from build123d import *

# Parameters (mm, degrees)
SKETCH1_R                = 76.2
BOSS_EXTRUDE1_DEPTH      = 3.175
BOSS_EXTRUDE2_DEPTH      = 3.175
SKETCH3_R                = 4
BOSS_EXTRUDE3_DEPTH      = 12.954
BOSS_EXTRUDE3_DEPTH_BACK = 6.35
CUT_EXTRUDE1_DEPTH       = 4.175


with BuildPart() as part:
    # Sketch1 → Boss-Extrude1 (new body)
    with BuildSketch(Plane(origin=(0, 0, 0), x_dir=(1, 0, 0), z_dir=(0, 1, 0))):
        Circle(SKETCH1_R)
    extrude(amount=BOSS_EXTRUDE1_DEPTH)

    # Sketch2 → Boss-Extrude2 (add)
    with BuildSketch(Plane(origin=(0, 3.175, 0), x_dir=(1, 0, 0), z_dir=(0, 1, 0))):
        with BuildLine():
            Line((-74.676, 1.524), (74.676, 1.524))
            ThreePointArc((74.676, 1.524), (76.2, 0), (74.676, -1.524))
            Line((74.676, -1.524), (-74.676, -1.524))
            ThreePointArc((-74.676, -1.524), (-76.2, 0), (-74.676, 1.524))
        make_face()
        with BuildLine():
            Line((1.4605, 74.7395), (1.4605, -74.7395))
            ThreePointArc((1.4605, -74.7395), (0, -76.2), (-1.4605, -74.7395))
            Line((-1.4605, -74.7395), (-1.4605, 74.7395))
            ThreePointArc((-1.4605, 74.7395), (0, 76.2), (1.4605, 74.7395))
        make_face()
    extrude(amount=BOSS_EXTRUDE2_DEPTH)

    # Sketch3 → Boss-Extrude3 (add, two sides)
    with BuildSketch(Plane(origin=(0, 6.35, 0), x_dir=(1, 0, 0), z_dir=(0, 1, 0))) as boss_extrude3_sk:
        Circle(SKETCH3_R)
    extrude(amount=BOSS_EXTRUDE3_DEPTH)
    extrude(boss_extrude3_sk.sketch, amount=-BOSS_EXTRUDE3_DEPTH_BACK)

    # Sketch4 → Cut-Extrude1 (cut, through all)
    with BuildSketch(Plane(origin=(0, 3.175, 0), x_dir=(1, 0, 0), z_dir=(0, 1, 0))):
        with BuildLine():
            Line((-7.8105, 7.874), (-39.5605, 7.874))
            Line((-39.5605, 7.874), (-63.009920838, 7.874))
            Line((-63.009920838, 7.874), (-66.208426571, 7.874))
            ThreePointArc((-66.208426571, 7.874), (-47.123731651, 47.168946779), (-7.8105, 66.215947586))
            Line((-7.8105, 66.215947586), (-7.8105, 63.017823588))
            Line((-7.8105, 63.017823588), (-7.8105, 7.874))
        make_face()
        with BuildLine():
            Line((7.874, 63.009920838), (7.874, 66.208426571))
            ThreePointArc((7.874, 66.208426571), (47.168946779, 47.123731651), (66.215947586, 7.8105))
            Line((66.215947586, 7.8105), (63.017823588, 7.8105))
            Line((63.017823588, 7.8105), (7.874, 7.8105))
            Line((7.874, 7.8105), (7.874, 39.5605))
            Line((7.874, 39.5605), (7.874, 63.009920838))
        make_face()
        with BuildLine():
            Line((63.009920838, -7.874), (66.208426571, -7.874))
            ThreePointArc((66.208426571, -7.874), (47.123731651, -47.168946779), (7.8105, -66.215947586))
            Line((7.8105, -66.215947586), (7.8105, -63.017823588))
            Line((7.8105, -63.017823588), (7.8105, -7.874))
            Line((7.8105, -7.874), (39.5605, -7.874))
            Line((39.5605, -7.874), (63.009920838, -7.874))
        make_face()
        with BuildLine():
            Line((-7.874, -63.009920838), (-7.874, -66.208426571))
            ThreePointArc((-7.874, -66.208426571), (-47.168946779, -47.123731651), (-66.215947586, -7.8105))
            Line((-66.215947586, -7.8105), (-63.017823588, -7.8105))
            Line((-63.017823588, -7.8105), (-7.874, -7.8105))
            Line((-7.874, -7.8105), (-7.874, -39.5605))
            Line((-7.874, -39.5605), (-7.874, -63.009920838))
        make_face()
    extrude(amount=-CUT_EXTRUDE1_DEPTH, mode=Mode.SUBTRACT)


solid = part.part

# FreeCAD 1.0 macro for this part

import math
import FreeCAD as App
import Part
import Sketcher
Q = App.Units.Quantity

doc = App.newDocument("Part")
body = doc.addObject("PartDesign::Body", "Body")

# Sketch on XZ plane
sketch1 = body.newObject("Sketcher::SketchObject", "Sketch")
sketch1.AttachmentSupport = (doc.getObject("XZ_Plane"), [""])
sketch1.MapMode = "FlatFace"
sketch1.addGeometry(Part.Circle(App.Vector(0, 0, 0), App.Vector(0, 0, 1), 76), False)
sketch1.addConstraint([
    Sketcher.Constraint("Coincident", 0, 3, -1, 1),
    Sketcher.Constraint("Diameter", 0, Q("6 in")),
])
pad1 = body.newObject("PartDesign::Pad", "Pad")
pad1.Profile = sketch1
pad1.Length = Q("0.125 in")
pad1.Reversed = True

# Sketch on XZ plane
sketch2 = body.newObject("Sketcher::SketchObject", "Sketch001")
sketch2.AttachmentSupport = (doc.getObject("XZ_Plane"), [""])
sketch2.MapMode = "FlatFace"
sketch2.AttachmentOffset = App.Placement(App.Vector(0, 0, -0.125 * 25.4), App.Rotation())
sketch2.addGeometry([
    Part.ArcOfCircle(Part.Circle(App.Vector(-74.7, 0, 0), App.Vector(0, 0, 1), 1.5), math.radians(90), math.radians(270)),  # 0
    Part.LineSegment(App.Vector(-74.7, 1.5, 0), App.Vector(-1.5, 1.5, 0)),  # 1
    Part.LineSegment(App.Vector(-1.5, 1.5, 0), App.Vector(-1.5, 74.7, 0)),  # 2
    Part.ArcOfCircle(Part.Circle(App.Vector(0, 74.7, 0), App.Vector(0, 0, 1), 1.5), math.radians(0), math.radians(180)),  # 3
    Part.LineSegment(App.Vector(1.5, 74.7, 0), App.Vector(1.5, 1.5, 0)),  # 4
    Part.LineSegment(App.Vector(1.5, 1.5, 0), App.Vector(74.7, 1.5, 0)),  # 5
    Part.ArcOfCircle(Part.Circle(App.Vector(74.7, 0, 0), App.Vector(0, 0, 1), 1.5), math.radians(-90), math.radians(90)),  # 6
    Part.LineSegment(App.Vector(74.7, -1.5, 0), App.Vector(1.5, -1.5, 0)),  # 7
    Part.LineSegment(App.Vector(1.5, -1.5, 0), App.Vector(1.5, -74.7, 0)),  # 8
    Part.ArcOfCircle(Part.Circle(App.Vector(0, -74.7, 0), App.Vector(0, 0, 1), 1.5), math.radians(180), math.radians(360)),  # 9
    Part.LineSegment(App.Vector(-1.5, -74.7, 0), App.Vector(-1.5, -1.5, 0)),  # 10
    Part.LineSegment(App.Vector(-1.5, -1.5, 0), App.Vector(-74.7, -1.5, 0)),  # 11
], False)
sketch2.addConstraint([
    Sketcher.Constraint("Tangent", 0, 1, 1, 1),
    Sketcher.Constraint("Coincident", 1, 2, 2, 1),
    Sketcher.Constraint("Tangent", 2, 2, 3, 2),
    Sketcher.Constraint("Tangent", 3, 1, 4, 1),
    Sketcher.Constraint("Coincident", 4, 2, 5, 1),
    Sketcher.Constraint("Tangent", 5, 2, 6, 2),
    Sketcher.Constraint("Tangent", 6, 1, 7, 1),
    Sketcher.Constraint("Coincident", 7, 2, 8, 1),
    Sketcher.Constraint("Tangent", 8, 2, 9, 2),
    Sketcher.Constraint("Tangent", 9, 1, 10, 1),
    Sketcher.Constraint("Coincident", 10, 2, 11, 1),
    Sketcher.Constraint("Tangent", 11, 2, 0, 2),
    Sketcher.Constraint("Horizontal", 1),
    Sketcher.Constraint("Vertical", 2),
    Sketcher.Constraint("Vertical", 4),
    Sketcher.Constraint("Horizontal", 5),
    Sketcher.Constraint("Horizontal", 7),
    Sketcher.Constraint("Vertical", 8),
    Sketcher.Constraint("Vertical", 10),
    Sketcher.Constraint("Horizontal", 11),
    Sketcher.Constraint("Equal", 0, 6),
    Sketcher.Constraint("Equal", 3, 9),
    Sketcher.Constraint("Symmetric", 0, 3, 6, 3, -1, 1),
    Sketcher.Constraint("Symmetric", 3, 3, 9, 3, -1, 1),
    Sketcher.Constraint("Symmetric", 1, 2, 4, 2, -2),
    Sketcher.Constraint("Equal", 11, 2),
    Sketcher.Constraint("Radius", 0, Q("0.06 in")),
    Sketcher.Constraint("Radius", 3, Q("0.0575 in")),
    Sketcher.Constraint("DistanceX", 0, 3, -1, 1, Q("2.94 in")),
])
pad2 = body.newObject("PartDesign::Pad", "Pad001")
pad2.Profile = sketch2
pad2.Length = Q("0.125 in")
pad2.Reversed = True

# Sketch on XZ plane
sketch3 = body.newObject("Sketcher::SketchObject", "Sketch002")
sketch3.AttachmentSupport = (doc.getObject("XZ_Plane"), [""])
sketch3.MapMode = "FlatFace"
sketch3.AttachmentOffset = App.Placement(App.Vector(0, 0, -0.25 * 25.4), App.Rotation())
sketch3.addGeometry(Part.Circle(App.Vector(0, 0, 0), App.Vector(0, 0, 1), 4), False)
sketch3.addConstraint([
    Sketcher.Constraint("Coincident", 0, 3, -1, 1),
    Sketcher.Constraint("Diameter", 0, 8.0),
])
pad3 = body.newObject("PartDesign::Pad", "Pad002")
pad3.Profile = sketch3
pad3.Type = "TwoLengths"
pad3.Length = Q("0.51 in")
pad3.Length2 = Q("0.25 in")
pad3.Reversed = True

# Sketch on XZ plane
sketch4 = body.newObject("Sketcher::SketchObject", "Sketch003")
sketch4.AttachmentSupport = (doc.getObject("XZ_Plane"), [""])
sketch4.MapMode = "FlatFace"
sketch4.AttachmentOffset = App.Placement(App.Vector(0, 0, -0.125 * 25.4), App.Rotation())
sketch4.addGeometry([
    Part.LineSegment(App.Vector(-66, -8, 0), App.Vector(-8, -8, 0)),  # 0
    Part.LineSegment(App.Vector(-8, -8, 0), App.Vector(-8, -66, 0)),  # 1
    Part.ArcOfCircle(Part.Circle(App.Vector(0, 0, 0), App.Vector(0, 0, 1), 67), math.radians(-173), math.radians(-97)),  # 2
    Part.ArcOfCircle(Part.Circle(App.Vector(0, 0, 0), App.Vector(0, 0, 1), 67), math.radians(-83), math.radians(-7)),  # 3
    Part.LineSegment(App.Vector(8, -66, 0), App.Vector(8, -8, 0)),  # 4
    Part.LineSegment(App.Vector(8, -8, 0), App.Vector(66, -8, 0)),  # 5
    Part.ArcOfCircle(Part.Circle(App.Vector(0, 0, 0), App.Vector(0, 0, 1), 67), math.radians(7), math.radians(83)),  # 6
    Part.LineSegment(App.Vector(66, 8, 0), App.Vector(8, 8, 0)),  # 7
    Part.LineSegment(App.Vector(8, 8, 0), App.Vector(8, 66, 0)),  # 8
    Part.ArcOfCircle(Part.Circle(App.Vector(0, 0, 0), App.Vector(0, 0, 1), 67), math.radians(97), math.radians(173)),  # 9
    Part.LineSegment(App.Vector(-8, 66, 0), App.Vector(-8, 8, 0)),  # 10
    Part.LineSegment(App.Vector(-8, 8, 0), App.Vector(-66, 8, 0)),  # 11
], False)
sketch4.addConstraint([
    Sketcher.Constraint("Coincident", 0, 2, 1, 1),
    Sketcher.Constraint("Coincident", 1, 2, 2, 2),
    Sketcher.Constraint("Coincident", 2, 1, 0, 1),
    Sketcher.Constraint("Coincident", 3, 1, 4, 1),
    Sketcher.Constraint("Coincident", 4, 2, 5, 1),
    Sketcher.Constraint("Coincident", 5, 2, 3, 2),
    Sketcher.Constraint("Coincident", 6, 1, 7, 1),
    Sketcher.Constraint("Coincident", 7, 2, 8, 1),
    Sketcher.Constraint("Coincident", 8, 2, 6, 2),
    Sketcher.Constraint("Coincident", 9, 1, 10, 1),
    Sketcher.Constraint("Coincident", 10, 2, 11, 1),
    Sketcher.Constraint("Coincident", 11, 2, 9, 2),
    Sketcher.Constraint("Horizontal", 0),
    Sketcher.Constraint("Vertical", 1),
    Sketcher.Constraint("Vertical", 4),
    Sketcher.Constraint("Horizontal", 5),
    Sketcher.Constraint("Horizontal", 7),
    Sketcher.Constraint("Vertical", 8),
    Sketcher.Constraint("Vertical", 10),
    Sketcher.Constraint("Horizontal", 11),
    Sketcher.Constraint("Coincident", 2, 3, -1, 1),
    Sketcher.Constraint("Coincident", 3, 3, -1, 1),
    Sketcher.Constraint("Coincident", 6, 3, -1, 1),
    Sketcher.Constraint("Coincident", 9, 3, -1, 1),
    Sketcher.Constraint("Equal", 2, 3),
    Sketcher.Constraint("Equal", 3, 6),
    Sketcher.Constraint("Equal", 6, 9),
    Sketcher.Constraint("Symmetric", 0, 2, 7, 2, -1, 1),
    Sketcher.Constraint("Symmetric", 4, 2, 10, 2, -1, 1),
    Sketcher.Constraint("Equal", 11, 1),
    Sketcher.Constraint("Equal", 7, 4),
    Sketcher.Constraint("Radius", 2, Q("2.625 in")),
    Sketcher.Constraint("DistanceY", 0, 2, -1, 1, Q("0.31 in")),
    Sketcher.Constraint("DistanceX", 0, 2, -1, 1, Q("0.3075 in")),
])
pocket1 = body.newObject("PartDesign::Pocket", "Pocket")
pocket1.Profile = sketch4
pocket1.Type = "ThroughAll"
pocket1.Reversed = True

doc.recompute()
